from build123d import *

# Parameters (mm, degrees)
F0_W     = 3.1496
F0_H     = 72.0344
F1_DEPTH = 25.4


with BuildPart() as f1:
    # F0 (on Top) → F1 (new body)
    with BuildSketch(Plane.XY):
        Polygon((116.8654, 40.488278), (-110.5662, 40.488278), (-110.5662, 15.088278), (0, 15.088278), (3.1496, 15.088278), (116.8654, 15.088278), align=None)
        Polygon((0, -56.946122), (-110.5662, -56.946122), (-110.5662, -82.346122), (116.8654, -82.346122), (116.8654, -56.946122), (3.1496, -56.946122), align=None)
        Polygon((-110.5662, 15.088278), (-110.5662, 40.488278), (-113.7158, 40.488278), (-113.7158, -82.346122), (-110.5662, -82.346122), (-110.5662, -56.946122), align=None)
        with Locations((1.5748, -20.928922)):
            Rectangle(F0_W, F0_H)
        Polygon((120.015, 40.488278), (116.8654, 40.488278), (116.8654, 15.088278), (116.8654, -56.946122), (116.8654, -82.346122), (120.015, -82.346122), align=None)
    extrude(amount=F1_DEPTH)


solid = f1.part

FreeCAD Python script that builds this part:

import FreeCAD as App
import Part
import Sketcher
from FreeCAD import Vector
Q = App.Units.Quantity


def add_polygon(sketch, points):
    """Adds a closed chain of lines whose ends are joined by coincident constraints."""
    first, n = sketch.GeometryCount, len(points)
    for a, b in zip(points, points[1:] + points[:1]):
        sketch.addGeometry(Part.LineSegment(App.Vector(*a, 0), App.Vector(*b, 0)), False)
    for i in range(n):
        sketch.addConstraint(Sketcher.Constraint("Coincident", first + i, 2, first + (i + 1) % n, 1))

doc = App.newDocument("Part")
body = doc.addObject("PartDesign::Body", "Body")

sketch1 = body.newObject("Sketcher::SketchObject", "Sketch")
sketch1.AttachmentSupport = (doc.getObject("XY_Plane"), [""])
sketch1.MapMode = "FlatFace"
add_polygon(sketch1, [(-114, 40), (-114, -82), (120, -82), (120, 40)])
add_polygon(sketch1, [(117, -57), (3, -57), (3, 15), (117, 15)])
add_polygon(sketch1, [(0, -57), (-111, -57), (-111, 15), (0, 15)])
sketch1.addConstraint([
    Sketcher.Constraint("Vertical", 0),
    Sketcher.Constraint("Horizontal", 1),
    Sketcher.Constraint("Vertical", 2),
    Sketcher.Constraint("Horizontal", 3),
    Sketcher.Constraint("Horizontal", 4),
    Sketcher.Constraint("Vertical", 5),
    Sketcher.Constraint("Horizontal", 6),
    Sketcher.Constraint("Vertical", 7),
    Sketcher.Constraint("Horizontal", 8),
    Sketcher.Constraint("Vertical", 9),
    Sketcher.Constraint("Horizontal", 10),
    Sketcher.Constraint("Vertical", 11),
    Sketcher.Constraint("PointOnObject", 10, 2, -2),
    Sketcher.Constraint("Horizontal", 7, 2, 8, 2),
    Sketcher.Constraint("Horizontal", 6, 2, 9, 2),
    Sketcher.Constraint("DistanceY", 1, 2, 4, 2, Q("1 in")),
    Sketcher.Constraint("DistanceY", 5, 2, 2, 2, Q("1 in")),
    Sketcher.Constraint("DistanceX", 1, 1, 1, 2, Q("9.202 in")),
    Sketcher.Constraint("DistanceX", 4, 2, 4, 1, Q("4.477 in")),
    Sketcher.Constraint("DistanceX", 8, 2, 8, 1, Q("4.353 in")),
    Sketcher.Constraint("DistanceY", 0, 2, 0, 1, Q("4.836 in")),
    Sketcher.Constraint("DistanceX", 0, 2, -1, 1, Q("4.477 in")),
    Sketcher.Constraint("DistanceX", -1, 1, 4, 2, Q("0.124 in")),
    Sketcher.Constraint("DistanceY", 0, 2, -1, 1, Q("82.346122 mm")),
])
pad1 = body.newObject("PartDesign::Pad", "Pad")
pad1.Profile = sketch1
pad1.Length = Q("1 in")

doc.recompute()
